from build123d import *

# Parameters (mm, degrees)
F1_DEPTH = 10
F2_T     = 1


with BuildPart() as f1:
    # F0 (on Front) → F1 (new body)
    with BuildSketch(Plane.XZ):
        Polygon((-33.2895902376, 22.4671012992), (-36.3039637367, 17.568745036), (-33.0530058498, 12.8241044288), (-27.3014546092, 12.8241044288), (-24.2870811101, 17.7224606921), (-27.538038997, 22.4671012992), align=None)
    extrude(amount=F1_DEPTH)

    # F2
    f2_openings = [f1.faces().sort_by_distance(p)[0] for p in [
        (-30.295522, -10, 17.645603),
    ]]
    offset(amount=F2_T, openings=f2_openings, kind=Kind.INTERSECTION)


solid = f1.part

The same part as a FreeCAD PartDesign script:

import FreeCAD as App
import Part
import Sketcher


def faces_at(feature, points):
    """Names of the faces that lie closest to the given points."""
    faces = feature.Shape.Faces
    near = lambda p: min(range(len(faces)), key=lambda i: faces[i].distToShape(Part.Vertex(*p))[0])
    return sorted({f"Face{near(p) + 1}" for p in points})


def add_polygon(sketch, points):
    """Adds a closed chain of lines whose ends are joined by coincident constraints."""
    first, n = sketch.GeometryCount, len(points)
    for a, b in zip(points, points[1:] + points[:1]):
        sketch.addGeometry(Part.LineSegment(App.Vector(*a, 0), App.Vector(*b, 0)), False)
    for i in range(n):
        sketch.addConstraint(Sketcher.Constraint("Coincident", first + i, 2, first + (i + 1) % n, 1))

doc = App.newDocument("Part")
body = doc.addObject("PartDesign::Body", "Body")

sketch1 = body.newObject("Sketcher::SketchObject", "Sketch")
sketch1.AttachmentSupport = (doc.getObject("XZ_Plane"), [""])
sketch1.MapMode = "FlatFace"
add_polygon(sketch1, [(-33.28959, 22.467101), (-36.303964, 17.568745), (-33.053006, 12.824104), (-27.301455, 12.824104), (-24.287081, 17.722461), (-27.538039, 22.467101)])
sketch1.addConstraint([
    Sketcher.Constraint("Horizontal", 2),
    Sketcher.Constraint("Horizontal", 5),
    Sketcher.Constraint("Parallel", 0, 3),
    Sketcher.Constraint("Parallel", 1, 4),
    Sketcher.Constraint("Equal", 2, 5),
    Sketcher.Constraint("Equal", 0, 1),
    Sketcher.Constraint("DistanceX", 2, 1, 2, 2, 5.751551),
    Sketcher.Constraint("DistanceY", -1, 1, 4, 2, 22.467101),
    Sketcher.Constraint("Distance", 0, 5.751551),
    Sketcher.Constraint("DistanceX", 3, 2, -1, 1, 24.287081),
    Sketcher.Constraint("DistanceY", -1, 1, 3, 2, 17.722461),
    Sketcher.Constraint("DistanceX", 0, 2, -1, 1, 36.303964),
])
pad1 = body.newObject("PartDesign::Pad", "Pad")
pad1.Profile = sketch1
pad1.Length = 10
doc.recompute()

thickness = body.newObject("PartDesign::Thickness", "Thickness")
thickness.Base = (pad1, faces_at(pad1, [(-30.296, -10, 17.646)]))
thickness.Value = 1
thickness.Reversed = False
thickness.Join = "Intersection"

doc.recompute()
